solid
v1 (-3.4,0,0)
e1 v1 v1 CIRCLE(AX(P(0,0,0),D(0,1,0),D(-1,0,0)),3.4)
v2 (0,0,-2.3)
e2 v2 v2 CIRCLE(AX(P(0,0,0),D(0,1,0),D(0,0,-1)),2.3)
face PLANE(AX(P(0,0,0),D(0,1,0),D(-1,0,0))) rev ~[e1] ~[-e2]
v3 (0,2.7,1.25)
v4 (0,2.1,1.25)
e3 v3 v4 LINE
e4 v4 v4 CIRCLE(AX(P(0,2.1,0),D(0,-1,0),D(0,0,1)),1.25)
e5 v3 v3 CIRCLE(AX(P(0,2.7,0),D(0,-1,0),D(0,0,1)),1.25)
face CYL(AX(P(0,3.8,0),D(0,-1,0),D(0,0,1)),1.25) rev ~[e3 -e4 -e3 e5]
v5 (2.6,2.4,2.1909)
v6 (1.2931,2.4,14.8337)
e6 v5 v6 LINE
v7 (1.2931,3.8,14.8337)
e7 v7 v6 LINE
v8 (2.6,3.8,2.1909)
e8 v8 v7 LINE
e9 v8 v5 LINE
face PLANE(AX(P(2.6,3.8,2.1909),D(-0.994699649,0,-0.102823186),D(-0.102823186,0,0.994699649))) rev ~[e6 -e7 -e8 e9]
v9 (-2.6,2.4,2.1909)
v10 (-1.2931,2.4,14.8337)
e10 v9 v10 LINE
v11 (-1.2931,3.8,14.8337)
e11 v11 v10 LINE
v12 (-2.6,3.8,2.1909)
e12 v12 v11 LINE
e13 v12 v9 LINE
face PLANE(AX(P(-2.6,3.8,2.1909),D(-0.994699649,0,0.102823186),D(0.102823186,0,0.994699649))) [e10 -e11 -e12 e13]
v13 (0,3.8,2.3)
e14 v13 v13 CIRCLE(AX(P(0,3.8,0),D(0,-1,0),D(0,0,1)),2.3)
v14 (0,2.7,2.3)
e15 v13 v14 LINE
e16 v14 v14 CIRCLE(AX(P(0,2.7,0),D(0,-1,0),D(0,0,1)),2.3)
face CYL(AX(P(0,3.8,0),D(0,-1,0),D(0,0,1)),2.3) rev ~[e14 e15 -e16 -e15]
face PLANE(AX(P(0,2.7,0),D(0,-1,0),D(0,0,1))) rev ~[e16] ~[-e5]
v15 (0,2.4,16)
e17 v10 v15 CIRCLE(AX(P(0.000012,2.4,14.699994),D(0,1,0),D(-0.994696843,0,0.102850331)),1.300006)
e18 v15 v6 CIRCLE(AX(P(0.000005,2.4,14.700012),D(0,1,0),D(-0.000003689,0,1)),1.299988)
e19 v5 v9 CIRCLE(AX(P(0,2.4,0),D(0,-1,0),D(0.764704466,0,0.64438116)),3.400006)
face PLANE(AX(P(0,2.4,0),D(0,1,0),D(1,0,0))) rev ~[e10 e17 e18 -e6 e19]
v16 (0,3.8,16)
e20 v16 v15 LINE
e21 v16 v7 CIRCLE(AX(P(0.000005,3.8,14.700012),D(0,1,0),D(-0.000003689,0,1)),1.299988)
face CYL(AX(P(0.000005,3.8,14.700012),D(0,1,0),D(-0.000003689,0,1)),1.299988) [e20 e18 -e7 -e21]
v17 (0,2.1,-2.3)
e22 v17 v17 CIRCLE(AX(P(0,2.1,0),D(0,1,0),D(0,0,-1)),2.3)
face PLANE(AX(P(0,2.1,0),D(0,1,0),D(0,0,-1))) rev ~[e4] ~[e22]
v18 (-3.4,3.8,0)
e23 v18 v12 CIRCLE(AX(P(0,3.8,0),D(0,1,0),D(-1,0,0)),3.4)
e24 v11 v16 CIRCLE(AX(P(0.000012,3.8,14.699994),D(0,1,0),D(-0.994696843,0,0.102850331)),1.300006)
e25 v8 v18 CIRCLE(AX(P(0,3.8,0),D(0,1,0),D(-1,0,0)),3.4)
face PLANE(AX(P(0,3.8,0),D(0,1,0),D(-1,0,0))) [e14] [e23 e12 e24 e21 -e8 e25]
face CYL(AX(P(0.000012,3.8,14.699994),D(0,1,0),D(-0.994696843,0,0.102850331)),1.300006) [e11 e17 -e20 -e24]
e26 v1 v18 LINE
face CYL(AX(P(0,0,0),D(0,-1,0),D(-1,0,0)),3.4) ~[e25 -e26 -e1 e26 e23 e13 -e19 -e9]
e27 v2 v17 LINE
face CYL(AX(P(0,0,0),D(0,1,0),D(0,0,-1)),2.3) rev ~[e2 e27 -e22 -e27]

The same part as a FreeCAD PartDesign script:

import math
import FreeCAD as App
import Part
import Sketcher

V = App.Vector

doc = App.newDocument("Part")
params = doc.addObject("Spreadsheet::Sheet", "Params")
for row, (alias, value) in enumerate([
    ("sketch1_diameter", "6.8 mm"),
    ("pad1_length", "3.8 mm"),
    ("sketch2_diameter", "2.5 mm"),
    ("hole_diameter", "2.5 mm"),
    ("sketch3_diameter", "4.6 mm"),
    ("hole2_diameter", "4.6 mm"),
    ("hole2_depth", "1.1 mm"),
    ("sketch4_diameter", "4.6 mm"),
    ("hole3_diameter", "4.6 mm"),
    ("hole3_depth", "2.1 mm"),
    ("sketch5_radius", "3.4 mm"),
    ("sketch5_radius2", "1.3 mm"),
    ("pad2_length", "1.4 mm"),
], start=1):
    params.set(f"A{row}", alias)
    params.set(f"B{row}", "=" + value)
    params.setAlias(f"B{row}", alias)

body = doc.addObject("PartDesign::Body", "Body")

# Sketch on XZ plane
sketch1 = body.newObject("Sketcher::SketchObject", "Sketch")
sketch1.AttachmentSupport = (doc.getObject("XZ_Plane"), [""])
sketch1.MapMode = "FlatFace"
sketch1.addGeometry(Part.Circle(V(0, 0, 0), V(0, 0, 1), 3.4), False)
sketch1.addConstraint(Sketcher.Constraint("Coincident", 0, 3, -1, 1))
sketch1.addConstraint(Sketcher.Constraint("Diameter", 0, 6.8))
sketch1.setExpression("Constraints[1]", "Params.sketch1_diameter")
pad1 = body.newObject("PartDesign::Pad", "Pad")
pad1.Profile = sketch1
pad1.setExpression("Length", "Params.pad1_length")
pad1.Reversed = True

# Sketch on XZ plane
sketch2 = body.newObject("Sketcher::SketchObject", "Sketch001")
sketch2.AttachmentSupport = (doc.getObject("XZ_Plane"), [""])
sketch2.MapMode = "FlatFace"
sketch2.AttachmentOffset = App.Placement(V(0, 0, -3.8), App.Rotation())
sketch2.addGeometry(Part.Circle(V(0, 0, 0), V(0, 0, 1), 1.25), False)
sketch2.addConstraint(Sketcher.Constraint("Coincident", 0, 3, -1, 1))
sketch2.addConstraint(Sketcher.Constraint("Diameter", 0, 2.5))
sketch2.setExpression("Constraints[1]", "Params.sketch2_diameter")
doc.recompute()
hole = body.newObject("PartDesign::Hole", "Hole")
hole.Profile = sketch2
hole.ThreadType = "None"
hole.setExpression("Diameter", "Params.hole_diameter")
hole.DepthType = "ThroughAll"
hole.Reversed = True

# Sketch on XZ plane
sketch3 = body.newObject("Sketcher::SketchObject", "Sketch002")
sketch3.AttachmentSupport = (doc.getObject("XZ_Plane"), [""])
sketch3.MapMode = "FlatFace"
sketch3.AttachmentOffset = App.Placement(V(0, 0, -3.8), App.Rotation())
sketch3.addGeometry(Part.Circle(V(0, 0, 0), V(0, 0, 1), 2.3), False)
sketch3.addConstraint(Sketcher.Constraint("Coincident", 0, 3, -1, 1))
sketch3.addConstraint(Sketcher.Constraint("Diameter", 0, 4.6))
sketch3.setExpression("Constraints[1]", "Params.sketch3_diameter")
doc.recompute()
hole2 = body.newObject("PartDesign::Hole", "Hole001")
hole2.Profile = sketch3
hole2.ThreadType = "None"
hole2.setExpression("Diameter", "Params.hole2_diameter")
hole2.DepthType = "Dimension"
hole2.setExpression("Depth", "Params.hole2_depth")
hole2.DrillPoint = "Flat"
hole2.Reversed = True

# Sketch on XZ plane
sketch4 = body.newObject("Sketcher::SketchObject", "Sketch003")
sketch4.AttachmentSupport = (doc.getObject("XZ_Plane"), [""])
sketch4.MapMode = "FlatFace"
sketch4.addGeometry(Part.Circle(V(0, 0, 0), V(0, 0, 1), 2.3), False)
sketch4.addConstraint(Sketcher.Constraint("Coincident", 0, 3, -1, 1))
sketch4.addConstraint(Sketcher.Constraint("Diameter", 0, 4.6))
sketch4.setExpression("Constraints[1]", "Params.sketch4_diameter")
doc.recompute()
hole3 = body.newObject("PartDesign::Hole", "Hole002")
hole3.Profile = sketch4
hole3.ThreadType = "None"
hole3.setExpression("Diameter", "Params.hole3_diameter")
hole3.DepthType = "Dimension"
hole3.setExpression("Depth", "Params.hole3_depth")
hole3.DrillPoint = "Flat"

# Sketch on XZ plane
sketch5 = body.newObject("Sketcher::SketchObject", "Sketch004")
sketch5.AttachmentSupport = (doc.getObject("XZ_Plane"), [""])
sketch5.MapMode = "FlatFace"
sketch5.AttachmentOffset = App.Placement(V(0, 0, -3.8), App.Rotation())
sketch5.addGeometry(Part.ArcOfCircle(Part.Circle(V(0, 0, 0), V(0, 0, 1), 3.400006), math.radians(40.119293), math.radians(139.880707)), False)
sketch5.addGeometry(Part.LineSegment(V(-2.6, 2.1909, 0), V(-1.2931, 14.8337, 0)), False)
sketch5.addGeometry(Part.ArcOfCircle(Part.Circle(V(0, 14.7, 0), V(0, 0, 1), 1.3), math.radians(90), math.radians(174.096882)), False)
sketch5.addGeometry(Part.ArcOfCircle(Part.Circle(V(0, 14.7, 0), V(0, 0, 1), 1.299994), math.radians(5.903118), math.radians(90)), False)
sketch5.addGeometry(Part.LineSegment(V(1.2931, 14.8337, 0), V(2.6, 2.1909, 0)), False)
sketch5.addConstraint(Sketcher.Constraint("Coincident", 0, 2, 1, 1))
sketch5.addConstraint(Sketcher.Constraint("Tangent", 1, 2, 2, 2))
sketch5.addConstraint(Sketcher.Constraint("Tangent", 2, 1, 3, 2))
sketch5.addConstraint(Sketcher.Constraint("Tangent", 3, 1, 4, 1))
sketch5.addConstraint(Sketcher.Constraint("Coincident", 4, 2, 0, 1))
sketch5.addConstraint(Sketcher.Constraint("Coincident", 0, 3, -1, 1))
sketch5.addConstraint(Sketcher.Constraint("Equal", 2, 3))
sketch5.addConstraint(Sketcher.Constraint("Symmetric", 1, 2, 3, 1, -2))
sketch5.addConstraint(Sketcher.Constraint("PointOnObject", 2, 1, -2))
sketch5.addConstraint(Sketcher.Constraint("Radius", 0, 3.4))
sketch5.addConstraint(Sketcher.Constraint("Radius", 2, 1.3))
sketch5.addConstraint(Sketcher.Constraint("DistanceY", -1, 1, 2, 1, 16.0))
sketch5.addConstraint(Sketcher.Constraint("DistanceX", 0, 2, -1, 1, 2.6))
sketch5.setExpression("Constraints[9]", "Params.sketch5_radius")
sketch5.setExpression("Constraints[10]", "Params.sketch5_radius2")
pad2 = body.newObject("PartDesign::Pad", "Pad001")
pad2.Profile = sketch5
pad2.setExpression("Length", "Params.pad2_length")

doc.recompute()
